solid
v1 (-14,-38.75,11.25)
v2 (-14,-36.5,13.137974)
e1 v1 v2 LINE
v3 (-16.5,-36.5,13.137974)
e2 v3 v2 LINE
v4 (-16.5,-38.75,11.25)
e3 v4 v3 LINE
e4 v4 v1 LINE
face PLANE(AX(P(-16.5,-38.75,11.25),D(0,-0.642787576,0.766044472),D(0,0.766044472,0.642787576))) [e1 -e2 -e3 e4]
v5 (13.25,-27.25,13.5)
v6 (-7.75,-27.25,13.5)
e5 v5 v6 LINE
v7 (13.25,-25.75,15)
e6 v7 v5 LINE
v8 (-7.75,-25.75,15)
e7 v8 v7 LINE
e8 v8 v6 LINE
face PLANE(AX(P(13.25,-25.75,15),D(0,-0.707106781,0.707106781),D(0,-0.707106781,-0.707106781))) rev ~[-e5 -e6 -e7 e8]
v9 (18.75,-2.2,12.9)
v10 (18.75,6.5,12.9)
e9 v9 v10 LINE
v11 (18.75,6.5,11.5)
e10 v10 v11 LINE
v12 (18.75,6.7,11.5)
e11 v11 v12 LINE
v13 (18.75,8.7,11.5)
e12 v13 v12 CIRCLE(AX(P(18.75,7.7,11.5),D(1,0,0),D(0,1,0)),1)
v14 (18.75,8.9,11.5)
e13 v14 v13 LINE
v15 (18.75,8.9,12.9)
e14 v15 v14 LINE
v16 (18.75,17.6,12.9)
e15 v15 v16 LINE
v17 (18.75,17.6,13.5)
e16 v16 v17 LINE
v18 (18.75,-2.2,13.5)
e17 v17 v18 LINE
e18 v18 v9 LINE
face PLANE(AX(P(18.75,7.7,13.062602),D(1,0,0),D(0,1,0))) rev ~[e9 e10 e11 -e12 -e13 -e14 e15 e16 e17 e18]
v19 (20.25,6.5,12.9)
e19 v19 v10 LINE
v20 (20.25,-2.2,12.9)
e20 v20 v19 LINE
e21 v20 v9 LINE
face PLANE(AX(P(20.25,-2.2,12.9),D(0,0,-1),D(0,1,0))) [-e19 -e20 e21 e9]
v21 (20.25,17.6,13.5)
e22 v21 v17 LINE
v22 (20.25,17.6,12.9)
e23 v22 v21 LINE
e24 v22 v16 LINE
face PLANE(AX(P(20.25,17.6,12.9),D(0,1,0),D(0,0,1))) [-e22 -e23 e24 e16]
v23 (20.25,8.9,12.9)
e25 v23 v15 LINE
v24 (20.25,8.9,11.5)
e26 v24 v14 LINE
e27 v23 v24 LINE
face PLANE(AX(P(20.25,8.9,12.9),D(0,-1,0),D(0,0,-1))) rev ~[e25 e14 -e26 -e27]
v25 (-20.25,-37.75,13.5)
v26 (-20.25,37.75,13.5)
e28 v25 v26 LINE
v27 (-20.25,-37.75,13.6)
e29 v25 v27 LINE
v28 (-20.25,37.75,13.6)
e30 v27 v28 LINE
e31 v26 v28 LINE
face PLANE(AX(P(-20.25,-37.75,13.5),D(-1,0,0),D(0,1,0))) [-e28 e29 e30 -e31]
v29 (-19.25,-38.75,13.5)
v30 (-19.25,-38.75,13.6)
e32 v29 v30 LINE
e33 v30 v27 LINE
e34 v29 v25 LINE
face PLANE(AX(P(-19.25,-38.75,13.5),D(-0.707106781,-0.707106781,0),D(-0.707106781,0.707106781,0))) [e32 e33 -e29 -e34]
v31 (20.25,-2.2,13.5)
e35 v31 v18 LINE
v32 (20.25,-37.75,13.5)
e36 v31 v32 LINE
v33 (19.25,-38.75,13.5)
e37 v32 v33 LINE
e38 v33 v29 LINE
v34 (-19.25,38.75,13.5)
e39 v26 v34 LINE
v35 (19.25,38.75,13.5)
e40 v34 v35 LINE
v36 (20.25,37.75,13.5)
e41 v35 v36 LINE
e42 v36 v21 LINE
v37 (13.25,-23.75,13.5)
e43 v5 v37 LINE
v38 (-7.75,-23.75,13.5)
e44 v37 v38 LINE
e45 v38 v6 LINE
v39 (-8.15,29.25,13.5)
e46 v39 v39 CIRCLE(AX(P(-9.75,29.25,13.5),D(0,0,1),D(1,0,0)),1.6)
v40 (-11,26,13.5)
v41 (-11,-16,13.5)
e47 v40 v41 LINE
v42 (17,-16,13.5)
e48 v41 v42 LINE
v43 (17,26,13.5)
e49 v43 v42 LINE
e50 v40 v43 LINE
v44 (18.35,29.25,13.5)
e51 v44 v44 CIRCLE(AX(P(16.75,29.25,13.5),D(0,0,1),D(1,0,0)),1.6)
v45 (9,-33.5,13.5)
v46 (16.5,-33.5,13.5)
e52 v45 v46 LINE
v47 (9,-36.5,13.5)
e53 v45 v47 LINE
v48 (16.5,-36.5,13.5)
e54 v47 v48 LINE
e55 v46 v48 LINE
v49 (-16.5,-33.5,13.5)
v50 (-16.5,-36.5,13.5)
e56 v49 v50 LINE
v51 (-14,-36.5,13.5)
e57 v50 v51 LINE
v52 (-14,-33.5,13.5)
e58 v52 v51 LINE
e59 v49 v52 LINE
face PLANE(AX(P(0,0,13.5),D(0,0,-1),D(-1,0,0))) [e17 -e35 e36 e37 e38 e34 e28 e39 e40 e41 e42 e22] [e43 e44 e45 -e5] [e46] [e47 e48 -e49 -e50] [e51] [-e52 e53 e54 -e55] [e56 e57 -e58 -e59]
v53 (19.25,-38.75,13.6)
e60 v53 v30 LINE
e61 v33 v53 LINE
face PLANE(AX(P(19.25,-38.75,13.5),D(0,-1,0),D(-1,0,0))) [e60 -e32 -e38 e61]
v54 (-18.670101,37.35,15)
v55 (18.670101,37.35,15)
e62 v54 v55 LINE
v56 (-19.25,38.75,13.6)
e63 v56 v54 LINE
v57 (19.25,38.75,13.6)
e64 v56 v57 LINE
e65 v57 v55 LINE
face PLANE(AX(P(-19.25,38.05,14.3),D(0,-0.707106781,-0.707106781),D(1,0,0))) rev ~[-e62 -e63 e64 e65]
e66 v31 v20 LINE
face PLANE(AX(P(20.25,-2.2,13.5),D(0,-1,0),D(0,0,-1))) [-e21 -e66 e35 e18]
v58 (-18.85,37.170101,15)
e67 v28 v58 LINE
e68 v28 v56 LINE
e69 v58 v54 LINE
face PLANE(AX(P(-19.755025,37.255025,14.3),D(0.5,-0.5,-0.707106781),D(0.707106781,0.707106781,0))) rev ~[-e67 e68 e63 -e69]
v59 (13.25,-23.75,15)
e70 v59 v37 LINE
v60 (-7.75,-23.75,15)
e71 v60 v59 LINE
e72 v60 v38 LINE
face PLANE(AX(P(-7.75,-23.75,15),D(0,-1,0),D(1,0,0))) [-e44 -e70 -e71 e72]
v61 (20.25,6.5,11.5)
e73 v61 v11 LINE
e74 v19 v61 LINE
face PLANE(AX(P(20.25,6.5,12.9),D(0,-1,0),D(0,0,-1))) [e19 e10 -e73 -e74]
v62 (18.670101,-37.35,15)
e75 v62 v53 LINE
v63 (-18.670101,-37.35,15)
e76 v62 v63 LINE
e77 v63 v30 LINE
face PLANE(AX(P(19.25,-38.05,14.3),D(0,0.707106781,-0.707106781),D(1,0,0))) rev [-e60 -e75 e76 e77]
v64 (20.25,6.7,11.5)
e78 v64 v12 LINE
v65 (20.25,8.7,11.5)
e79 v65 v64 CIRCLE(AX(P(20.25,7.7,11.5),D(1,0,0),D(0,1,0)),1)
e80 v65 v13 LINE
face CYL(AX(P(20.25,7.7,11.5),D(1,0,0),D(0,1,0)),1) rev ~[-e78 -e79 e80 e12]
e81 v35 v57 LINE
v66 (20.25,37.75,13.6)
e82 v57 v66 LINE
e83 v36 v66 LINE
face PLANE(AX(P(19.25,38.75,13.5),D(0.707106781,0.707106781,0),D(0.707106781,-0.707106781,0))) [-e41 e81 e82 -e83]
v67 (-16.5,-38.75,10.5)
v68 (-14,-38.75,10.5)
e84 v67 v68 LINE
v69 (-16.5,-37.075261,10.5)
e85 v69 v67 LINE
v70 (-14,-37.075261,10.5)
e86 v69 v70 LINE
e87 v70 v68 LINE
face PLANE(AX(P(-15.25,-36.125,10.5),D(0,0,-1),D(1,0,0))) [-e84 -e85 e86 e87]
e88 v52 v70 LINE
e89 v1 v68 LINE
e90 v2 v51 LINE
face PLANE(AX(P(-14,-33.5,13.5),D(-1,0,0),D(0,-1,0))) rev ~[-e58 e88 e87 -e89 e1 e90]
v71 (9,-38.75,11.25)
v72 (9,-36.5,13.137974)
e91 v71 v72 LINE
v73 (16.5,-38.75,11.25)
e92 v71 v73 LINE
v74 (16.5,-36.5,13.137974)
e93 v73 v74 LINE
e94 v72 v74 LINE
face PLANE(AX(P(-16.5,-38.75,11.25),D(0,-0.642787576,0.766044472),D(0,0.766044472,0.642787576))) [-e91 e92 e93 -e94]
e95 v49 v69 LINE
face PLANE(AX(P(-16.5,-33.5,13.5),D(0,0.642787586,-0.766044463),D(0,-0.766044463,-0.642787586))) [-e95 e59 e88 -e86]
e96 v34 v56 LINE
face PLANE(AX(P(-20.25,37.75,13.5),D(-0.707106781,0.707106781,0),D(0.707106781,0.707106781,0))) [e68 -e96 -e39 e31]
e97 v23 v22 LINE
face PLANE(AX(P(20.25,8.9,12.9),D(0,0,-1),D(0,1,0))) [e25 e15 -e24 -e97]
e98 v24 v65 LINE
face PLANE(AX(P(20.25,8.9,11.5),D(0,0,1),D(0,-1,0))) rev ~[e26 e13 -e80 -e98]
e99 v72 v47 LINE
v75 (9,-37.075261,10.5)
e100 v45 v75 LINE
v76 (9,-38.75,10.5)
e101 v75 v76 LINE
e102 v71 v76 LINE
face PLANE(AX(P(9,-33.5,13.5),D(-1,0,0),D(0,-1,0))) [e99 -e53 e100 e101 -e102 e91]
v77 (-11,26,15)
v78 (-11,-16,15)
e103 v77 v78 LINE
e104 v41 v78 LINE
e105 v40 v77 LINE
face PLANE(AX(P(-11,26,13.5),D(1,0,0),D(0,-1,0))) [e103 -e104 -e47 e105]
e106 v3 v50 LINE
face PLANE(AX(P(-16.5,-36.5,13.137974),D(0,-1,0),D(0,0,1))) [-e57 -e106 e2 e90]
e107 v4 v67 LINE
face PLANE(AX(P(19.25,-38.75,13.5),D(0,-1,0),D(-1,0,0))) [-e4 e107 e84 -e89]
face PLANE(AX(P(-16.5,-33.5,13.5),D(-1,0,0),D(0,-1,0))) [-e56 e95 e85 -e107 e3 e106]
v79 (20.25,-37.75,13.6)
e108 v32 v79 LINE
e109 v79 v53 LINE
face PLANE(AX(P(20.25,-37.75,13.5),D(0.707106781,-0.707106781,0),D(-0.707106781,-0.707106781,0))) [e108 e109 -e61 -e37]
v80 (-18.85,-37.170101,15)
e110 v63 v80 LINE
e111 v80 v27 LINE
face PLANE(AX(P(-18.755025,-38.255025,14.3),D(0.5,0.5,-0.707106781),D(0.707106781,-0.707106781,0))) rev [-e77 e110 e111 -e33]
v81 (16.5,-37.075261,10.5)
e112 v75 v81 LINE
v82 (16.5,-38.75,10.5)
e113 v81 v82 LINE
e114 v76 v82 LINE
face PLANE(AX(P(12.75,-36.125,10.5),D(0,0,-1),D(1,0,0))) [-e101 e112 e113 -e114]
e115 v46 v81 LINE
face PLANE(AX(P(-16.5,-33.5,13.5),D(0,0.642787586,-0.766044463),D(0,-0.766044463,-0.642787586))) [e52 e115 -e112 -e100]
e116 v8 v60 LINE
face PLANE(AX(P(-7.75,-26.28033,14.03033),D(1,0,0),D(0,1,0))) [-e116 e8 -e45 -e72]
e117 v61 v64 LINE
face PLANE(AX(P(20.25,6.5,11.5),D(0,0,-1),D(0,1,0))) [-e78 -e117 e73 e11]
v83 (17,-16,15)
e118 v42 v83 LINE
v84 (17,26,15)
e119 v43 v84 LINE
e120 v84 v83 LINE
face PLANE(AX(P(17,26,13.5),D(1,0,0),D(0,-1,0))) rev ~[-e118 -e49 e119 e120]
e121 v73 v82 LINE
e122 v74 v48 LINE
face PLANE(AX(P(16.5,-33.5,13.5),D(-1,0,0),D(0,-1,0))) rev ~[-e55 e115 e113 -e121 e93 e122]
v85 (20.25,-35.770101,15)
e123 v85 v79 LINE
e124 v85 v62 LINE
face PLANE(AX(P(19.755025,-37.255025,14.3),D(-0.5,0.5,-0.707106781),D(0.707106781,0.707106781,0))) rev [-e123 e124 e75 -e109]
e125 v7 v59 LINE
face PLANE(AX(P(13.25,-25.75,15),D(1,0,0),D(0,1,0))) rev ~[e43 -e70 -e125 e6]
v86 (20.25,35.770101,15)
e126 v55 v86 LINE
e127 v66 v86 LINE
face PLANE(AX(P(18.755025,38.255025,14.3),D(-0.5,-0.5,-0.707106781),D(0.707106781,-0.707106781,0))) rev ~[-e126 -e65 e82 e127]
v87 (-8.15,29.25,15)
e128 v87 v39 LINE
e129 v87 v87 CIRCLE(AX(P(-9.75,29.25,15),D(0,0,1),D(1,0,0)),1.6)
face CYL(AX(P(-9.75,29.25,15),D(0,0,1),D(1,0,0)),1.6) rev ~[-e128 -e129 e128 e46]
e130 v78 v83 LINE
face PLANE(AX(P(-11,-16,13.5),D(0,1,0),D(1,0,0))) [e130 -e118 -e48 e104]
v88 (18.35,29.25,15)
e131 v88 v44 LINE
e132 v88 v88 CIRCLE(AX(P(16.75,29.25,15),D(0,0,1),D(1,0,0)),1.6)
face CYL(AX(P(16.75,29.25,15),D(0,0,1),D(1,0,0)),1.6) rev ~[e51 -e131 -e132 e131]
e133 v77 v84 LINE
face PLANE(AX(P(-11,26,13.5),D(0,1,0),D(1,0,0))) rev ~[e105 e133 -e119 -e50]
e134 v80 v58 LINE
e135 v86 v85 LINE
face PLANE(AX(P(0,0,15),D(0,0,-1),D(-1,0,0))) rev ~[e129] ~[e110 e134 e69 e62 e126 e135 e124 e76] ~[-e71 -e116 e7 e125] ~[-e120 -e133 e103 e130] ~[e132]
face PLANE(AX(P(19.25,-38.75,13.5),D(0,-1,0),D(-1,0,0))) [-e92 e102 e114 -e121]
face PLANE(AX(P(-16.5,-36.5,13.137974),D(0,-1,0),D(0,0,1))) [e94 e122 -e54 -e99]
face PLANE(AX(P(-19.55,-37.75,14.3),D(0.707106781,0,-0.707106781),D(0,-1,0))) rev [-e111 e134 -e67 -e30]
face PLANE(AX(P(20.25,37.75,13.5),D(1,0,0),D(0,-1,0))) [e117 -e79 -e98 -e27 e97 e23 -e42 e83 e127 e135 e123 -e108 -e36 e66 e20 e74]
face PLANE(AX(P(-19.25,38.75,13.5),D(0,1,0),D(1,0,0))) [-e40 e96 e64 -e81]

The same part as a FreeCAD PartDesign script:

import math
import FreeCAD as App
import Part
import Sketcher
Q = App.Units.Quantity


def edges_at(feature, points):
    """Names of the edges that pass closest to the given points."""
    edges = feature.Shape.Edges
    near = lambda p: min(range(len(edges)), key=lambda i: edges[i].distToShape(Part.Vertex(*p))[0])
    return sorted({f"Edge{near(p) + 1}" for p in points})


def add_polygon(sketch, points):
    """Adds a closed chain of lines whose ends are joined by coincident constraints."""
    first, n = sketch.GeometryCount, len(points)
    for a, b in zip(points, points[1:] + points[:1]):
        sketch.addGeometry(Part.LineSegment(App.Vector(*a, 0), App.Vector(*b, 0)), False)
    for i in range(n):
        sketch.addConstraint(Sketcher.Constraint("Coincident", first + i, 2, first + (i + 1) % n, 1))

doc = App.newDocument("Part")
body = doc.addObject("PartDesign::Body", "Body")

# Sketch on XY plane
sketch1 = body.newObject("Sketcher::SketchObject", "Sketch")
sketch1.AttachmentSupport = (doc.getObject("XY_Plane"), [""])
sketch1.MapMode = "FlatFace"
sketch1.AttachmentOffset = App.Placement(App.Vector(0, 0, 13.5), App.Rotation())
add_polygon(sketch1, [(19.2, 38.8), (-19.2, 38.8), (-20.2, 37.8), (-20.2, -37.8), (-19.2, -38.8), (19.2, -38.8), (20.2, -37.8), (20.2, 37.8)])  # lines 0-7
sketch1.addConstraint([
    Sketcher.Constraint("Horizontal", 0),
    Sketcher.Constraint("Vertical", 2),
    Sketcher.Constraint("Horizontal", 4),
    Sketcher.Constraint("Vertical", 6),
    Sketcher.Constraint("Symmetric", 0, 2, 4, 2, -1, 1),
    Sketcher.Constraint("Symmetric", 1, 2, 5, 2, -1, 1),
    Sketcher.Constraint("Perpendicular", 1, 3),
    Sketcher.Constraint("Perpendicular", 5, 7),
    Sketcher.Constraint("Horizontal", 2, 2, 5, 2),
    Sketcher.Constraint("Horizontal", 1, 2, 6, 2),
    Sketcher.Constraint("Vertical", 0, 2, 3, 2),
    Sketcher.Constraint("DistanceX", 0, 2, 0, 1, 38.5),
    Sketcher.Constraint("DistanceY", 2, 2, 2, 1, 75.5),
    Sketcher.Constraint("DistanceX", 1, 2, 0, 2, 1.0),
])
pad1 = body.newObject("PartDesign::Pad", "Pad")
pad1.Profile = sketch1
pad1.Length = 1.5

# Sketch on XY plane
sketch2 = body.newObject("Sketcher::SketchObject", "Sketch001")
sketch2.AttachmentSupport = (doc.getObject("XY_Plane"), [""])
sketch2.MapMode = "FlatFace"
sketch2.AttachmentOffset = App.Placement(App.Vector(0, 0, 13.5), App.Rotation())
add_polygon(sketch2, [(-16.5, -38.8), (-16.5, -33.5), (-14, -33.5), (-14, -38.8)])  # lines 0-3
add_polygon(sketch2, [(9, -38.8), (9, -33.5), (16.5, -33.5), (16.5, -38.8)])  # lines 4-7
sketch2.addConstraint([
    Sketcher.Constraint("Vertical", 0),
    Sketcher.Constraint("Horizontal", 1),
    Sketcher.Constraint("Vertical", 2),
    Sketcher.Constraint("Horizontal", 3),
    Sketcher.Constraint("Vertical", 4),
    Sketcher.Constraint("Horizontal", 5),
    Sketcher.Constraint("Vertical", 6),
    Sketcher.Constraint("Horizontal", 7),
    Sketcher.Constraint("Symmetric", 0, 2, 5, 2, -2),
    Sketcher.Constraint("Horizontal", 3, 2, 6, 2),
    Sketcher.Constraint("DistanceX", 1, 1, 1, 2, 2.5),
    Sketcher.Constraint("DistanceX", 5, 1, 5, 2, 7.5),
    Sketcher.Constraint("DistanceX", 1, 2, -1, 1, 14.0),
    Sketcher.Constraint("DistanceY", 0, 1, 0, 2, 5.25),
    Sketcher.Constraint("DistanceY", 0, 2, -1, 1, 33.5),
])
pad2 = body.newObject("PartDesign::Pad", "Pad001")
pad2.Profile = sketch2
pad2.Length = 3
pad2.Reversed = True

# Sketch on YZ plane
sketch3 = body.newObject("Sketcher::SketchObject", "Sketch002")
sketch3.AttachmentSupport = (doc.getObject("YZ_Plane"), [""])
sketch3.MapMode = "FlatFace"
sketch3.AttachmentOffset = App.Placement(App.Vector(0, 0, -16.5), App.Rotation())
add_polygon(sketch3, [(-38.75, 13.5), (-36.5, 13.5), (-36.5, 13.14), (-38.75, 11.25)])  # lines 0-3
add_polygon(sketch3, [(-37.08, 10.5), (-33.5, 13.5), (-33.5, 10.5)])  # lines 4-6
sketch3.addConstraint([
    Sketcher.Constraint("Horizontal", 0),
    Sketcher.Constraint("Vertical", 1),
    Sketcher.Constraint("Vertical", 3),
    Sketcher.Constraint("Vertical", 5),
    Sketcher.Constraint("Horizontal", 6),
    Sketcher.Constraint("Parallel", 2, 4),
    Sketcher.Constraint("Horizontal", 3, 2, 4, 2),
    Sketcher.Constraint("Equal", 0, 3),
    Sketcher.Constraint("DistanceY", 5, 2, 5, 1, 3.0),
    Sketcher.Constraint("Angle", 2, Q("-140.000003 deg")),
    Sketcher.Constraint("DistanceX", 0, 2, 4, 2, 3.0),
    Sketcher.Constraint("DistanceX", 0, 1, 0, 2, 2.25),
    Sketcher.Constraint("DistanceX", 0, 2, -1, 1, 36.5),
    Sketcher.Constraint("DistanceY", -1, 1, 0, 2, 13.5),
])
pocket1 = body.newObject("PartDesign::Pocket", "Pocket")
pocket1.Profile = sketch3
pocket1.Type = "ThroughAll"
pocket1.Reversed = True

# Sketch on XY plane
sketch4 = body.newObject("Sketcher::SketchObject", "Sketch003")
sketch4.AttachmentSupport = (doc.getObject("XY_Plane"), [""])
sketch4.MapMode = "FlatFace"
sketch4.AttachmentOffset = App.Placement(App.Vector(0, 0, 15), App.Rotation())
sketch4.addGeometry([
    Part.Circle(App.Vector(-9.8, 29.2, 0), App.Vector(0, 0, 1), 1.6),
    Part.Circle(App.Vector(16.8, 29.2, 0), App.Vector(0, 0, 1), 1.6),
], False)
sketch4.addConstraint([
    Sketcher.Constraint("Equal", 0, 1),
    Sketcher.Constraint("Horizontal", 0, 3, 1, 3),
    Sketcher.Constraint("Diameter", 0, 3.2),
    Sketcher.Constraint("DistanceX", 0, 3, 1, 3, 26.5),
    Sketcher.Constraint("DistanceX", 0, 3, -1, 1, 9.75),
    Sketcher.Constraint("DistanceY", -1, 1, 0, 3, 29.25),
])
pocket2 = body.newObject("PartDesign::Pocket", "Pocket001")
pocket2.Profile = sketch4
pocket2.Type = "ThroughAll"

# Sketch on XY plane
sketch5 = body.newObject("Sketcher::SketchObject", "Sketch004")
sketch5.AttachmentSupport = (doc.getObject("XY_Plane"), [""])
sketch5.MapMode = "FlatFace"
sketch5.AttachmentOffset = App.Placement(App.Vector(0, 0, 15), App.Rotation())
add_polygon(sketch5, [(-7.8, -23.8), (-7.8, -25.8), (13.2, -25.8), (13.2, -23.8)])  # lines 0-3
sketch5.addConstraint([
    Sketcher.Constraint("Vertical", 0),
    Sketcher.Constraint("Horizontal", 1),
    Sketcher.Constraint("Vertical", 2),
    Sketcher.Constraint("Horizontal", 3),
    Sketcher.Constraint("DistanceX", 1, 1, 1, 2, 21.0),
    Sketcher.Constraint("DistanceY", 0, 2, 0, 1, 2.0),
    Sketcher.Constraint("DistanceX", 0, 2, -1, 1, 7.75),
    Sketcher.Constraint("DistanceY", 0, 2, -1, 1, 25.75),
])
pocket3 = body.newObject("PartDesign::Pocket", "Pocket002")
pocket3.Profile = sketch5
pocket3.Type = "ThroughAll"

# Sketch on YZ plane
sketch6 = body.newObject("Sketcher::SketchObject", "Sketch005")
sketch6.AttachmentSupport = (doc.getObject("YZ_Plane"), [""])
sketch6.MapMode = "FlatFace"
sketch6.AttachmentOffset = App.Placement(App.Vector(0, 0, 13.25), App.Rotation())
add_polygon(sketch6, [(-27.2, 13.5), (-25.8, 15), (-25.8, 13.5)])  # lines 0-2
sketch6.addConstraint([
    Sketcher.Constraint("Vertical", 1),
    Sketcher.Constraint("Horizontal", 2),
    Sketcher.Constraint("Equal", 2, 1),
    Sketcher.Constraint("DistanceX", 2, 2, 2, 1, 1.5),
    Sketcher.Constraint("DistanceY", -1, 1, 0, 2, 15.0),
    Sketcher.Constraint("DistanceX", 0, 2, -1, 1, 25.75),
])
pocket4 = body.newObject("PartDesign::Pocket", "Pocket003")
pocket4.Profile = sketch6
pocket4.Length = 21

# Sketch on XY plane
sketch7 = body.newObject("Sketcher::SketchObject", "Sketch006")
sketch7.AttachmentSupport = (doc.getObject("XY_Plane"), [""])
sketch7.MapMode = "FlatFace"
sketch7.AttachmentOffset = App.Placement(App.Vector(0, 0, 13.5), App.Rotation())
add_polygon(sketch7, [(-11, -16), (-11, 26), (17, 26), (17, -16)])  # lines 0-3
sketch7.addConstraint([
    Sketcher.Constraint("Vertical", 0),
    Sketcher.Constraint("Horizontal", 1),
    Sketcher.Constraint("Vertical", 2),
    Sketcher.Constraint("Horizontal", 3),
    Sketcher.Constraint("DistanceX", 1, 1, 1, 2, 28.0),
    Sketcher.Constraint("DistanceY", 0, 1, 0, 2, 42.0),
    Sketcher.Constraint("DistanceX", 0, 2, -1, 1, 11.0),
    Sketcher.Constraint("DistanceY", -1, 1, 0, 2, 26.0),
])
pocket5 = body.newObject("PartDesign::Pocket", "Pocket004")
pocket5.Profile = sketch7
pocket5.Type = "ThroughAll"
pocket5.Reversed = True

# Sketch on YZ plane
sketch8 = body.newObject("Sketcher::SketchObject", "Sketch007")
sketch8.AttachmentSupport = (doc.getObject("YZ_Plane"), [""])
sketch8.MapMode = "FlatFace"
sketch8.AttachmentOffset = App.Placement(App.Vector(0, 0, 20.25), App.Rotation())
sketch8.addGeometry([
    Part.LineSegment(App.Vector(17.6, 13.5, 0), App.Vector(-2.2, 13.5, 0)),  # 0
    Part.LineSegment(App.Vector(-2.2, 13.5, 0), App.Vector(-2.2, 12.9, 0)),  # 1
    Part.LineSegment(App.Vector(-2.2, 12.9, 0), App.Vector(6.5, 12.9, 0)),  # 2
    Part.LineSegment(App.Vector(6.5, 12.9, 0), App.Vector(6.5, 11.5, 0)),  # 3
    Part.LineSegment(App.Vector(6.5, 11.5, 0), App.Vector(6.7, 11.5, 0)),  # 4
    Part.ArcOfCircle(Part.Circle(App.Vector(7.7, 11.5, 0), App.Vector(0, 0, 1), 1), math.radians(0), math.radians(180)),  # 5
    Part.LineSegment(App.Vector(8.7, 11.5, 0), App.Vector(8.9, 11.5, 0)),  # 6
    Part.LineSegment(App.Vector(8.9, 11.5, 0), App.Vector(8.9, 12.9, 0)),  # 7
    Part.LineSegment(App.Vector(8.9, 12.9, 0), App.Vector(17.6, 12.9, 0)),  # 8
    Part.LineSegment(App.Vector(17.6, 12.9, 0), App.Vector(17.6, 13.5, 0)),  # 9
], False)
sketch8.addConstraint([
    Sketcher.Constraint("Coincident", 0, 2, 1, 1),
    Sketcher.Constraint("Coincident", 1, 2, 2, 1),
    Sketcher.Constraint("Coincident", 2, 2, 3, 1),
    Sketcher.Constraint("Coincident", 3, 2, 4, 1),
    Sketcher.Constraint("Coincident", 4, 2, 5, 2),
    Sketcher.Constraint("Coincident", 5, 1, 6, 1),
    Sketcher.Constraint("Coincident", 6, 2, 7, 1),
    Sketcher.Constraint("Coincident", 7, 2, 8, 1),
    Sketcher.Constraint("Coincident", 8, 2, 9, 1),
    Sketcher.Constraint("Coincident", 9, 2, 0, 1),
    Sketcher.Constraint("Horizontal", 0),
    Sketcher.Constraint("Vertical", 1),
    Sketcher.Constraint("Horizontal", 2),
    Sketcher.Constraint("Vertical", 3),
    Sketcher.Constraint("Horizontal", 4),
    Sketcher.Constraint("Horizontal", 6),
    Sketcher.Constraint("Vertical", 7),
    Sketcher.Constraint("Horizontal", 8),
    Sketcher.Constraint("Vertical", 9),
    Sketcher.Constraint("Horizontal", 5, 3, 3, 2),
    Sketcher.Constraint("Horizontal", 4, 2, 5, 1),
    Sketcher.Constraint("Horizontal", 2, 2, 7, 2),
    Sketcher.Constraint("Equal", 4, 6),
    Sketcher.Constraint("Equal", 2, 8),
    Sketcher.Constraint("Radius", 5, 1.0),
    Sketcher.Constraint("DistanceX", 0, 2, 0, 1, 19.8),
    Sketcher.Constraint("DistanceX", 2, 1, 2, 2, 8.7),
    Sketcher.Constraint("DistanceY", 1, 2, 1, 1, 0.6),
    Sketcher.Constraint("DistanceY", 3, 2, 3, 1, 1.4),
    Sketcher.Constraint("DistanceX", -1, 1, 5, 3, 7.7),
    Sketcher.Constraint("DistanceY", -1, 1, 5, 3, 11.5),
])
pad3 = body.newObject("PartDesign::Pad", "Pad002")
pad3.Profile = sketch8
pad3.Length = 1.5
pad3.Reversed = True
doc.recompute()

chamfer = body.newObject("PartDesign::Chamfer", "Chamfer")
chamfer.Base = (pad3, edges_at(pad3, [
    (19.75, 38.25, 15),
    (0, 38.75, 15),
    (-19.75, 38.25, 15),
    (-20.25, 0, 15),
    (-19.75, -38.25, 15),
    (0, -38.75, 15),
    (19.75, -38.25, 15),
]))
chamfer.Size = 1.4

doc.recompute()
